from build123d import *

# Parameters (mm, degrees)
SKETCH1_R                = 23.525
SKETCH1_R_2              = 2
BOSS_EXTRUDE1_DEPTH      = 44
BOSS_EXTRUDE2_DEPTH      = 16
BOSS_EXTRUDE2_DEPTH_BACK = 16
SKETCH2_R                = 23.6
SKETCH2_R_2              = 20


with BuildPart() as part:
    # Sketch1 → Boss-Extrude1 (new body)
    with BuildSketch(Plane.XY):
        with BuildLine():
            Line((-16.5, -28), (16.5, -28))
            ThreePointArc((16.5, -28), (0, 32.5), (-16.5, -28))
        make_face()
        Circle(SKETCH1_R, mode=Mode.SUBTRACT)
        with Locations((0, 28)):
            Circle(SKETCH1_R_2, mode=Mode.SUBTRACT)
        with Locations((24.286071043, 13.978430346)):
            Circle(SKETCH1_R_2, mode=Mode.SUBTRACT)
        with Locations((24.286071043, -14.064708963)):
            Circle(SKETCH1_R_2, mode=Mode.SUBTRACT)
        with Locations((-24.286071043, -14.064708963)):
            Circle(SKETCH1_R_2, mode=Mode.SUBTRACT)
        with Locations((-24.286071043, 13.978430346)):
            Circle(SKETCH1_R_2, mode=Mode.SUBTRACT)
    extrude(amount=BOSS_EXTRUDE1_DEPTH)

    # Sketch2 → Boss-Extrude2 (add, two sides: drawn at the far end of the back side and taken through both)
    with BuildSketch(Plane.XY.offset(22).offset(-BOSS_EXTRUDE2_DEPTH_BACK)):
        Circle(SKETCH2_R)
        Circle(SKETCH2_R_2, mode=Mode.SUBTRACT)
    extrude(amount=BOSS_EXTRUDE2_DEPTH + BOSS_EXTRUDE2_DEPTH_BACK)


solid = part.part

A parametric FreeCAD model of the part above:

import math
import FreeCAD as App
import Part
import Sketcher
from FreeCAD import Vector

doc = App.newDocument("Part")
body = doc.addObject("PartDesign::Body", "Body")

# Sketch on XY plane
sketch1 = doc.addObject("Sketcher::SketchObject", "Sketch")
body.addObject(sketch1)
sketch1.AttachmentSupport = (doc.XY_Plane, [""])
sketch1.MapMode = "FlatFace"
sketch1.addGeometry(Part.LineSegment(Vector(-16.5, -28, 0), Vector(16.5, -28, 0)), False)
sketch1.addGeometry(Part.ArcOfCircle(Part.Circle(Vector(0, 0, 0), Vector(0, 0, 1), 32.5), math.radians(-59), math.radians(239)), False)
sketch1.addGeometry(Part.Circle(Vector(-24.3, -14.1, 0), Vector(0, 0, 1), 2), False)
sketch1.addGeometry(Part.Circle(Vector(0, 0, 0), Vector(0, 0, 1), 23.5), False)
sketch1.addGeometry(Part.Circle(Vector(24.3, -14.1, 0), Vector(0, 0, 1), 2), False)
sketch1.addGeometry(Part.Circle(Vector(-24.3, 14, 0), Vector(0, 0, 1), 2), False)
sketch1.addGeometry(Part.Circle(Vector(0, 28, 0), Vector(0, 0, 1), 2), False)
sketch1.addGeometry(Part.Circle(Vector(24.3, 14, 0), Vector(0, 0, 1), 2), False)
sketch1.addConstraint(Sketcher.Constraint("Coincident", 0, 1, 1, 2))
sketch1.addConstraint(Sketcher.Constraint("Coincident", 1, 1, 0, 2))
sketch1.addConstraint(Sketcher.Constraint("Horizontal", 0))
sketch1.addConstraint(Sketcher.Constraint("Coincident", 1, 3, -1, 1))
sketch1.addConstraint(Sketcher.Constraint("Coincident", 3, 3, -1, 1))
sketch1.addConstraint(Sketcher.Constraint("Equal", 2, 4))
sketch1.addConstraint(Sketcher.Constraint("Equal", 4, 5))
sketch1.addConstraint(Sketcher.Constraint("Equal", 5, 6))
sketch1.addConstraint(Sketcher.Constraint("Equal", 6, 7))
sketch1.addConstraint(Sketcher.Constraint("Symmetric", 2, 3, 4, 3, -2))
sketch1.addConstraint(Sketcher.Constraint("Symmetric", 5, 3, 7, 3, -2))
sketch1.addConstraint(Sketcher.Constraint("PointOnObject", 6, 3, -2))
sketch1.addConstraint(Sketcher.Constraint("Vertical", 2, 3, 5, 3))
sketch1.addConstraint(Sketcher.Constraint("Diameter", 2, 4.0))
sketch1.addConstraint(Sketcher.Constraint("Radius", 1, 32.5))
sketch1.addConstraint(Sketcher.Constraint("Diameter", 3, 47.05))
sketch1.addConstraint(Sketcher.Constraint("DistanceX", 0, 1, 0, 2, 33.0))
sketch1.addConstraint(Sketcher.Constraint("DistanceY", -1, 1, 6, 3, 28.0))
sketch1.addConstraint(Sketcher.Constraint("DistanceX", 2, 3, -1, 1, 24.286071))
sketch1.addConstraint(Sketcher.Constraint("DistanceY", 2, 3, -1, 1, 14.064709))
sketch1.addConstraint(Sketcher.Constraint("DistanceY", -1, 1, 5, 3, 13.97843))
pad1 = doc.addObject("PartDesign::Pad", "Pad")
body.addObject(pad1)
pad1.Profile = sketch1
pad1.Length = 44

# Sketch on XY plane
sketch2 = doc.addObject("Sketcher::SketchObject", "Sketch001")
body.addObject(sketch2)
sketch2.AttachmentSupport = (doc.XY_Plane, [""])
sketch2.MapMode = "FlatFace"
sketch2.AttachmentOffset = App.Placement(Vector(0, 0, 22), App.Rotation())
sketch2.addGeometry(Part.Circle(Vector(0, 0, 0), Vector(0, 0, 1), 24), False)
sketch2.addGeometry(Part.Circle(Vector(0, 0, 0), Vector(0, 0, 1), 20), False)
sketch2.addConstraint(Sketcher.Constraint("Coincident", 0, 3, -1, 1))
sketch2.addConstraint(Sketcher.Constraint("Coincident", 1, 3, -1, 1))
sketch2.addConstraint(Sketcher.Constraint("Diameter", 1, 40.0))
sketch2.addConstraint(Sketcher.Constraint("Diameter", 0, 47.2))
pad2 = doc.addObject("PartDesign::Pad", "Pad001")
body.addObject(pad2)
pad2.Profile = sketch2
pad2.Type = "TwoLengths"
pad2.Length = 16
pad2.Length2 = 16

doc.recompute()
